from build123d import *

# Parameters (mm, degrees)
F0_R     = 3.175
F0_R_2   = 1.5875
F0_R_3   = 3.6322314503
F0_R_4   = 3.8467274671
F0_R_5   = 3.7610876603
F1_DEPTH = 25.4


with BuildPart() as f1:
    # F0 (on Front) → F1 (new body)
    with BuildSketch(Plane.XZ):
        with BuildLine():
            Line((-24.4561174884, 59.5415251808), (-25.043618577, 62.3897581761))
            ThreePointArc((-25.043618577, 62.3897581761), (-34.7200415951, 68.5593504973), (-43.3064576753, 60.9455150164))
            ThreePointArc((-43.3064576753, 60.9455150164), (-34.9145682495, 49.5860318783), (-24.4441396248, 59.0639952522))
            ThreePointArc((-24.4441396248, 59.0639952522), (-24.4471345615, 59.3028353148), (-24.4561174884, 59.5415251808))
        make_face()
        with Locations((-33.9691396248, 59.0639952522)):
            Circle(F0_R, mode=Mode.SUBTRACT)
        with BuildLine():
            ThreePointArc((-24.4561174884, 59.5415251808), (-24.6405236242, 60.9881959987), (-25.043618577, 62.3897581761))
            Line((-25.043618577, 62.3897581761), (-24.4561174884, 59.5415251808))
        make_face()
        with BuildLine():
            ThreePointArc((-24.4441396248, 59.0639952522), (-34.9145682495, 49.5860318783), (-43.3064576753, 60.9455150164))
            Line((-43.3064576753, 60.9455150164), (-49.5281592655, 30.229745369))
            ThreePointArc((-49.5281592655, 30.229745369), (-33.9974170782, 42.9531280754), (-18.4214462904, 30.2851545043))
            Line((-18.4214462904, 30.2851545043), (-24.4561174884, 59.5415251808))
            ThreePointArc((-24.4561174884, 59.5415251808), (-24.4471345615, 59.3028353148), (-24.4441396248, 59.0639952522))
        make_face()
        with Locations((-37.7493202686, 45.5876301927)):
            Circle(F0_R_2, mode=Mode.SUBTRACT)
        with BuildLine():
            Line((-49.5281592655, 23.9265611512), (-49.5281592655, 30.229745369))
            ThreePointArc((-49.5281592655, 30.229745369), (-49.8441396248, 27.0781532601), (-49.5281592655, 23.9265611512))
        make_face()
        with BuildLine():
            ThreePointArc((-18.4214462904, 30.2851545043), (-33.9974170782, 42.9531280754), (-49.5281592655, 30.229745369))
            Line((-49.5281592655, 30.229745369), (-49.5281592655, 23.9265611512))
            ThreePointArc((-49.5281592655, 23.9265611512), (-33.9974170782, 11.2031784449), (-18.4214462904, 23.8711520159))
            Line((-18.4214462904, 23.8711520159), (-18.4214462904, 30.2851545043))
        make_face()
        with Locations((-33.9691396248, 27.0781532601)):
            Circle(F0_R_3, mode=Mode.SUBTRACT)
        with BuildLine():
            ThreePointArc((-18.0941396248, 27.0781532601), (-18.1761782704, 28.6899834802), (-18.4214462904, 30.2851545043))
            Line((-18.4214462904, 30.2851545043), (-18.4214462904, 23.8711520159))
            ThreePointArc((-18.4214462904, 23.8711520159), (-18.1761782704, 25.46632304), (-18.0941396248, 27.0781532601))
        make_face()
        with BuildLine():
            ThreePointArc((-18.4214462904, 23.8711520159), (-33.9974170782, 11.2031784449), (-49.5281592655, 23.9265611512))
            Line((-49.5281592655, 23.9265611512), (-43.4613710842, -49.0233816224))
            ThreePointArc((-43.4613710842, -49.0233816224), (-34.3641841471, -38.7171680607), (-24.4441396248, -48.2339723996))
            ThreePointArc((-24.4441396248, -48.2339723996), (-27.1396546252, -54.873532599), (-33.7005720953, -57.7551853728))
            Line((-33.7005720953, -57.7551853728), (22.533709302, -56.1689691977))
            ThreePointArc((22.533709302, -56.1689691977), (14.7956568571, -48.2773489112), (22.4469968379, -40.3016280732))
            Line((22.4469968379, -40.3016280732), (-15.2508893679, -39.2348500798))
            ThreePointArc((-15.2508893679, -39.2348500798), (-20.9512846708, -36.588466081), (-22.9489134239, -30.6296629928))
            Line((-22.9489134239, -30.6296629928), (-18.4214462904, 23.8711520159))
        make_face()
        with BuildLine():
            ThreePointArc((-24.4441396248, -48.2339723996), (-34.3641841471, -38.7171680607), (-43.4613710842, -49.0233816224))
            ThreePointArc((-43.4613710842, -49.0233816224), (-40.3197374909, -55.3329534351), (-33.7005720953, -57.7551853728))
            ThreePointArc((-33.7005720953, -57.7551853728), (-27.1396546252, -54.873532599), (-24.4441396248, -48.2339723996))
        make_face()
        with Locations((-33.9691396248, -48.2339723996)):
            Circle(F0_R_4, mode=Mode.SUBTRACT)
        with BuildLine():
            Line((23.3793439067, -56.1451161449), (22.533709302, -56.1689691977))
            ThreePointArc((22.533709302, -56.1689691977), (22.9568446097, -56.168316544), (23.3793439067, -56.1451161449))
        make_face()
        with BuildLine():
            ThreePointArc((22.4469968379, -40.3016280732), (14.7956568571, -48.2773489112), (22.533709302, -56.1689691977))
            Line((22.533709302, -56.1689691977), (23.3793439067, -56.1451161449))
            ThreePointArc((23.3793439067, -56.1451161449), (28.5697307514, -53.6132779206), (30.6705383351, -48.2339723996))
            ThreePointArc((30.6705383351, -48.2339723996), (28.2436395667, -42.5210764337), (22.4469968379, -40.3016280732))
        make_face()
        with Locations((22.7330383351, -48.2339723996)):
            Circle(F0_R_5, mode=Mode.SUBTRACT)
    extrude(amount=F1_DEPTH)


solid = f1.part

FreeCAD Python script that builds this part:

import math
import FreeCAD as App
import Part
import Sketcher
from FreeCAD import Vector
Q = App.Units.Quantity

doc = App.newDocument("Part")
params = doc.addObject("Spreadsheet::Sheet", "Params")
for row, (alias, value) in enumerate([
    ("sketch1_diameter", "0.25 in"),
    ("sketch1_diameter2", "0.125 in"),
    ("sketch1_radius", "0.375 in"),
    ("sketch1_radius2", "0.625 in"),
    ("sketch1_radius3", "0.3125 in"),
    ("pad1_length", "1 in"),
], start=1):
    params.set(f"A{row}", alias)
    params.set(f"B{row}", "=" + value)
    params.setAlias(f"B{row}", alias)

body = doc.addObject("PartDesign::Body", "Body")

# Sketch on XZ plane
sketch1 = body.newObject("Sketcher::SketchObject", "Sketch")
sketch1.AttachmentSupport = (doc.getObject("XZ_Plane"), [""])
sketch1.MapMode = "FlatFace"
sketch1.addGeometry([
    Part.ArcOfCircle(Part.Circle(Vector(-34, 59.1, 0), Vector(0, 0, 1), 9.5), math.radians(2.87), math.radians(20.44)),  # 0
    Part.ArcOfCircle(Part.Circle(Vector(-34, 59.1, 0), Vector(0, 0, 1), 9.5), math.radians(20), math.radians(169)),  # 1
    Part.LineSegment(Vector(-43.3, 60.9, 0), Vector(-49.5, 30.2, 0)),  # 2
    Part.ArcOfCircle(Part.Circle(Vector(-34, 27.1, 0), Vector(0, 0, 1), 15.9), math.radians(169), math.radians(191)),  # 3
    Part.LineSegment(Vector(-49.5, 23.9, 0), Vector(-43.5, -49, 0)),  # 4
    Part.ArcOfCircle(Part.Circle(Vector(-34, -48.2, 0), Vector(0, 0, 1), 9.5), math.radians(-175), math.radians(-88)),  # 5
    Part.LineSegment(Vector(-33.7, -57.8, 0), Vector(22.5, -56.2, 0)),  # 6
    Part.ArcOfCircle(Part.Circle(Vector(22.7, -48.2, 0), Vector(0, 0, 1), 7.9), math.radians(-91.44), math.radians(-85.33)),  # 7
    Part.ArcOfCircle(Part.Circle(Vector(22.7, -48.2, 0), Vector(0, 0, 1), 7.9), math.radians(-85), math.radians(0)),  # 8
    Part.ArcOfCircle(Part.Circle(Vector(22.7, -48.2, 0), Vector(0, 0, 1), 7.9), math.radians(0), math.radians(92)),  # 9
    Part.LineSegment(Vector(22.4, -40.3, 0), Vector(-15.3, -39.2, 0)),  # 10
    Part.ArcOfCircle(Part.Circle(Vector(-15, -31.3, 0), Vector(0, 0, 1), 8), math.radians(175), math.radians(268)),  # 11
    Part.LineSegment(Vector(-22.9, -30.6, 0), Vector(-18.4, 23.9, 0)),  # 12
    Part.ArcOfCircle(Part.Circle(Vector(-34, 27.1, 0), Vector(0, 0, 1), 15.9), math.radians(-11.65), math.radians(0)),  # 13
    Part.ArcOfCircle(Part.Circle(Vector(-34, 27.1, 0), Vector(0, 0, 1), 15.9), math.radians(0), math.radians(11.65)),  # 14
    Part.LineSegment(Vector(-18.4, 30.3, 0), Vector(-24.5, 59.5, 0)),  # 15
    Part.Circle(Vector(-34, -48.2, 0), Vector(0, 0, 1), 3.8),  # 16
    Part.Circle(Vector(22.7, -48.2, 0), Vector(0, 0, 1), 3.8),  # 17
    Part.Circle(Vector(-34, 27.1, 0), Vector(0, 0, 1), 3.6),  # 18
    Part.Circle(Vector(-37.7, 45.6, 0), Vector(0, 0, 1), 1.6),  # 19
    Part.Circle(Vector(-34, 59.1, 0), Vector(0, 0, 1), 3.2),  # 20
], False)
sketch1.addConstraint([
    Sketcher.Constraint("Tangent", 0, 2, 1, 1),
    Sketcher.Constraint("Coincident", 1, 2, 2, 1),
    Sketcher.Constraint("Tangent", 2, 2, 3, 1),
    Sketcher.Constraint("Coincident", 3, 2, 4, 1),
    Sketcher.Constraint("Tangent", 4, 2, 5, 1),
    Sketcher.Constraint("Tangent", 5, 2, 6, 1),
    Sketcher.Constraint("Coincident", 6, 2, 7, 1),
    Sketcher.Constraint("Tangent", 7, 2, 8, 1),
    Sketcher.Constraint("Tangent", 8, 2, 9, 1),
    Sketcher.Constraint("Coincident", 9, 2, 10, 1),
    Sketcher.Constraint("Tangent", 10, 2, 11, 2),
    Sketcher.Constraint("Tangent", 11, 1, 12, 1),
    Sketcher.Constraint("Coincident", 12, 2, 13, 1),
    Sketcher.Constraint("Tangent", 13, 2, 14, 1),
    Sketcher.Constraint("Tangent", 14, 2, 15, 1),
    Sketcher.Constraint("Coincident", 15, 2, 0, 1),
    Sketcher.Constraint("Coincident", 9, 3, 7, 3),
    Sketcher.Constraint("Coincident", 13, 3, 3, 3),
    Sketcher.Constraint("Coincident", 16, 3, 5, 3),
    Sketcher.Constraint("Coincident", 17, 3, 7, 3),
    Sketcher.Constraint("Coincident", 18, 3, 3, 3),
    Sketcher.Constraint("Coincident", 20, 3, 0, 3),
    Sketcher.Constraint("Equal", 0, 1),
    Sketcher.Constraint("Equal", 1, 5),
    Sketcher.Constraint("Equal", 3, 13),
    Sketcher.Constraint("Equal", 13, 14),
    Sketcher.Constraint("Horizontal", 5, 3, 7, 3),
    Sketcher.Constraint("Horizontal", 17, 3, 8, 2),
    Sketcher.Constraint("Horizontal", 18, 3, 13, 2),
    Sketcher.Constraint("Vertical", 1, 3, 3, 3),
    Sketcher.Constraint("Vertical", 3, 3, 5, 3),
    Sketcher.Constraint("Vertical", 2, 2, 3, 2),
    Sketcher.Constraint("Vertical", 12, 2, 14, 2),
    Sketcher.Constraint("Diameter", 20, Q("0.25 in")),
    Sketcher.Constraint("Diameter", 19, Q("0.125 in")),
    Sketcher.Constraint("Radius", 0, Q("0.375 in")),
    Sketcher.Constraint("Radius", 3, Q("0.625 in")),
    Sketcher.Constraint("Radius", 7, Q("0.3125 in")),
    Sketcher.Constraint("Radius", 11, Q("0.313 in")),
    Sketcher.Constraint("Diameter", 16, Q("7.693455 mm")),
    Sketcher.Constraint("Diameter", 17, Q("7.522175 mm")),
    Sketcher.Constraint("Diameter", 18, Q("7.264463 mm")),
    Sketcher.Constraint("DistanceX", 19, 3, 0, 2, Q("12.705702 mm")),
    Sketcher.Constraint("DistanceY", 12, 2, 3, 3, Q("3.207001 mm")),
    Sketcher.Constraint("DistanceX", 0, 2, 15, 2, Q("0.587501 mm")),
    Sketcher.Constraint("Distance", 2, Q("31.339561 mm")),
    Sketcher.Constraint("Distance", 6, Q("56.256648 mm")),
    Sketcher.Constraint("Distance", 15, Q("29.872269 mm")),
    Sketcher.Constraint("DistanceX", 0, 3, -1, 1, Q("33.96914 mm")),
    Sketcher.Constraint("DistanceX", -1, 1, 7, 3, Q("22.733038 mm")),
    Sketcher.Constraint("DistanceY", 11, 3, -1, 1, Q("31.287831 mm")),
    Sketcher.Constraint("DistanceY", -1, 1, 19, 3, Q("45.58763 mm")),
    Sketcher.Constraint("DistanceY", -1, 1, 0, 2, Q("62.389758 mm")),
    Sketcher.Constraint("DistanceY", 4, 2, -1, 1, Q("49.023382 mm")),
    Sketcher.Constraint("DistanceY", 9, 2, -1, 1, Q("40.301628 mm")),
    Sketcher.Constraint("DistanceX", 10, 2, -1, 1, Q("15.250889 mm")),
    Sketcher.Constraint("DistanceX", -1, 1, 7, 2, Q("23.379344 mm")),
])
sketch1.setExpression("Constraints[33]", "Params.sketch1_diameter")
sketch1.setExpression("Constraints[34]", "Params.sketch1_diameter2")
sketch1.setExpression("Constraints[35]", "Params.sketch1_radius")
sketch1.setExpression("Constraints[36]", "Params.sketch1_radius2")
sketch1.setExpression("Constraints[37]", "Params.sketch1_radius3")
pad1 = body.newObject("PartDesign::Pad", "Pad")
pad1.Profile = sketch1
pad1.setExpression("Length", "Params.pad1_length")

doc.recompute()
